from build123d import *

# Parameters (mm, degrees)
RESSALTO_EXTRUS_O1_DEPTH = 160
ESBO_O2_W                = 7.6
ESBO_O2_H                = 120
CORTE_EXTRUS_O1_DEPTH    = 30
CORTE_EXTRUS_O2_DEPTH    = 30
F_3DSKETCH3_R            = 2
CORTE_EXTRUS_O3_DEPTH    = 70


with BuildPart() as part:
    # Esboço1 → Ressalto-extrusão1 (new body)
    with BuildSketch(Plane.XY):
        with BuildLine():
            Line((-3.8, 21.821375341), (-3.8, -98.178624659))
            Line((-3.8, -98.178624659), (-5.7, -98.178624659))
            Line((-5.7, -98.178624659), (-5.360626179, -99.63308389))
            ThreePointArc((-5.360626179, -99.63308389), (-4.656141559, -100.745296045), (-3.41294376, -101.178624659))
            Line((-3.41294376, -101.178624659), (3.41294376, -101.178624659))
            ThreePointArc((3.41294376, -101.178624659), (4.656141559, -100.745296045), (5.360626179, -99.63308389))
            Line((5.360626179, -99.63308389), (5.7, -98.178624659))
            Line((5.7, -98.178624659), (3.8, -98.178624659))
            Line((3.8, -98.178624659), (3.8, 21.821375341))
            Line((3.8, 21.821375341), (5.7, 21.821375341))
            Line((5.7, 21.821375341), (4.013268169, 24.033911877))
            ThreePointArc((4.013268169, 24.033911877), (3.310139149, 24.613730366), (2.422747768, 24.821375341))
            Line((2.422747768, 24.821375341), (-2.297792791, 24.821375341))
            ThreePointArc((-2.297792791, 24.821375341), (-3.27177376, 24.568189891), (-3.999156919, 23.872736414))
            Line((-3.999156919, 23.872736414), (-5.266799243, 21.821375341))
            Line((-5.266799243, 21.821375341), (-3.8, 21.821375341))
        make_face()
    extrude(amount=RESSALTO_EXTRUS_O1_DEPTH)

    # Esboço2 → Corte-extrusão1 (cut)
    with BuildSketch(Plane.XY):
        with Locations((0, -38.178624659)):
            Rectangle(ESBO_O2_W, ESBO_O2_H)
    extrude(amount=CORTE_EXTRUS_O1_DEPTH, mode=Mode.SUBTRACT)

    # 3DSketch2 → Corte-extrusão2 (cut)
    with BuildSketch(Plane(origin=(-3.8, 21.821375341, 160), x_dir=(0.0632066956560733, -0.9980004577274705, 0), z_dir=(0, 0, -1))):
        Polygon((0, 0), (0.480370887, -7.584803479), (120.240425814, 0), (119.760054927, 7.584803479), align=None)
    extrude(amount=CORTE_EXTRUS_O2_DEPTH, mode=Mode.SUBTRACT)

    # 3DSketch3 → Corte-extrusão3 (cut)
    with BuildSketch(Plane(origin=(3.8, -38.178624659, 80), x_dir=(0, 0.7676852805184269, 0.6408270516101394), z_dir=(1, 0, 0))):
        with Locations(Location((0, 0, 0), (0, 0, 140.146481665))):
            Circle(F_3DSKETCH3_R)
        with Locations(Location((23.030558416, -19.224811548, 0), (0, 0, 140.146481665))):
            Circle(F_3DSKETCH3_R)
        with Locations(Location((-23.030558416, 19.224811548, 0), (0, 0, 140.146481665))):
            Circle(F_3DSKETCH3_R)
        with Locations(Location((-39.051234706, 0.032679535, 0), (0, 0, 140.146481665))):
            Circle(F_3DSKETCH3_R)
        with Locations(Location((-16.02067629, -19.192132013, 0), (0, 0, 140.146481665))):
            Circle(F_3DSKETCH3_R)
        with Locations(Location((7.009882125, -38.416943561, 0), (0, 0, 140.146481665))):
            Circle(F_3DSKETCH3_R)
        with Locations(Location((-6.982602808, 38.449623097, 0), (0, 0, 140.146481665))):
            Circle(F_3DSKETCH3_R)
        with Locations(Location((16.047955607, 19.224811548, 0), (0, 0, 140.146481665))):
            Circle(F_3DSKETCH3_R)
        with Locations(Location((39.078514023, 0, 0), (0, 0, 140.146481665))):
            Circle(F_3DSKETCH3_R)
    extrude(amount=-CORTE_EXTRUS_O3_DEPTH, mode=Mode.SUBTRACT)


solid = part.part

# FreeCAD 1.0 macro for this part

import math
import FreeCAD as App
import Part
import Sketcher
from FreeCAD import Vector

doc = App.newDocument("Part")
body = doc.addObject("PartDesign::Body", "Body")

# Sketch on XY plane
sketch1 = body.newObject("Sketcher::SketchObject", "Sketch")
sketch1.AttachmentSupport = (doc.getObject("XY_Plane"), [""])
sketch1.MapMode = "FlatFace"
sketch1.addGeometry([
    Part.LineSegment(Vector(-3.8, 21.8, 0), Vector(-3.8, -98.2, 0)),  # 0
    Part.LineSegment(Vector(-3.8, -98.2, 0), Vector(-5.7, -98.2, 0)),  # 1
    Part.LineSegment(Vector(-5.7, -98.2, 0), Vector(-5.4, -99.6, 0)),  # 2
    Part.ArcOfCircle(Part.Circle(Vector(-3.4, -99.2, 0), Vector(0, 0, 1), 2), math.radians(-167), math.radians(-90)),  # 3
    Part.LineSegment(Vector(-3.4, -101.2, 0), Vector(3.4, -101.2, 0)),  # 4
    Part.ArcOfCircle(Part.Circle(Vector(3.4, -99.2, 0), Vector(0, 0, 1), 2), math.radians(-90), math.radians(-13)),  # 5
    Part.LineSegment(Vector(5.4, -99.6, 0), Vector(5.7, -98.2, 0)),  # 6
    Part.LineSegment(Vector(5.7, -98.2, 0), Vector(3.8, -98.2, 0)),  # 7
    Part.LineSegment(Vector(3.8, -98.2, 0), Vector(3.8, 21.8, 0)),  # 8
    Part.LineSegment(Vector(3.8, 21.8, 0), Vector(5.7, 21.8, 0)),  # 9
    Part.LineSegment(Vector(5.7, 21.8, 0), Vector(4, 24, 0)),  # 10
    Part.ArcOfCircle(Part.Circle(Vector(2.4, 22.8, 0), Vector(0, 0, 1), 2), math.radians(37), math.radians(90)),  # 11
    Part.LineSegment(Vector(2.4, 24.8, 0), Vector(-2.3, 24.8, 0)),  # 12
    Part.ArcOfCircle(Part.Circle(Vector(-2.3, 22.8, 0), Vector(0, 0, 1), 2), math.radians(90), math.radians(148)),  # 13
    Part.LineSegment(Vector(-4, 23.9, 0), Vector(-5.3, 21.8, 0)),  # 14
    Part.LineSegment(Vector(-5.3, 21.8, 0), Vector(-3.8, 21.8, 0)),  # 15
], False)
sketch1.addConstraint([
    Sketcher.Constraint("Coincident", 0, 2, 1, 1),
    Sketcher.Constraint("Coincident", 1, 2, 2, 1),
    Sketcher.Constraint("Tangent", 2, 2, 3, 1),
    Sketcher.Constraint("Tangent", 3, 2, 4, 1),
    Sketcher.Constraint("Tangent", 4, 2, 5, 1),
    Sketcher.Constraint("Tangent", 5, 2, 6, 1),
    Sketcher.Constraint("Coincident", 6, 2, 7, 1),
    Sketcher.Constraint("Coincident", 7, 2, 8, 1),
    Sketcher.Constraint("Coincident", 8, 2, 9, 1),
    Sketcher.Constraint("Coincident", 9, 2, 10, 1),
    Sketcher.Constraint("Tangent", 10, 2, 11, 1),
    Sketcher.Constraint("Tangent", 11, 2, 12, 1),
    Sketcher.Constraint("Tangent", 12, 2, 13, 1),
    Sketcher.Constraint("Tangent", 13, 2, 14, 1),
    Sketcher.Constraint("Coincident", 14, 2, 15, 1),
    Sketcher.Constraint("Coincident", 15, 2, 0, 1),
    Sketcher.Constraint("Vertical", 0),
    Sketcher.Constraint("Horizontal", 1),
    Sketcher.Constraint("Horizontal", 4),
    Sketcher.Constraint("Horizontal", 7),
    Sketcher.Constraint("Vertical", 8),
    Sketcher.Constraint("Horizontal", 9),
    Sketcher.Constraint("Horizontal", 12),
    Sketcher.Constraint("Horizontal", 15),
    Sketcher.Constraint("Equal", 3, 5),
    Sketcher.Constraint("Equal", 5, 11),
    Sketcher.Constraint("Equal", 11, 13),
    Sketcher.Constraint("Symmetric", 2, 2, 5, 2, -2),
    Sketcher.Constraint("Symmetric", 0, 2, 7, 2, -2),
    Sketcher.Constraint("Horizontal", 9, 2, 14, 2),
    Sketcher.Constraint("Vertical", 6, 2, 9, 2),
    Sketcher.Constraint("Radius", 3, 2.0),
    Sketcher.Constraint("DistanceY", 0, 2, 0, 1, 120.0),
    Sketcher.Constraint("DistanceX", 1, 2, 1, 1, 1.9),
    Sketcher.Constraint("DistanceY", 5, 3, 11, 3, 122.0),
    Sketcher.Constraint("DistanceY", 3, 3, 0, 2, 1.0),
    Sketcher.Constraint("DistanceX", 0, 2, -1, 1, 3.8),
    Sketcher.Constraint("DistanceX", 15, 1, 15, 2, 1.466799),
    Sketcher.Constraint("DistanceX", 12, 2, 12, 1, 4.720541),
    Sketcher.Constraint("Distance", 2, 1.493528),
    Sketcher.Constraint("Distance", 14, 2.411431),
    Sketcher.Constraint("DistanceY", -1, 1, 10, 2, 24.033912),
])
pad1 = body.newObject("PartDesign::Pad", "Pad")
pad1.Profile = sketch1
pad1.Length = 160

# Sketch on XY plane
sketch2 = body.newObject("Sketcher::SketchObject", "Sketch001")
sketch2.AttachmentSupport = (doc.getObject("XY_Plane"), [""])
sketch2.MapMode = "FlatFace"
sketch2.addGeometry([
    Part.LineSegment(Vector(-4, 22, 0), Vector(-4, -98, 0)),
    Part.LineSegment(Vector(-4, -98, 0), Vector(4, -98, 0)),
    Part.LineSegment(Vector(4, -98, 0), Vector(4, 22, 0)),
    Part.LineSegment(Vector(4, 22, 0), Vector(-4, 22, 0)),
], False)
sketch2.addConstraint([
    Sketcher.Constraint("Coincident", 0, 2, 1, 1),
    Sketcher.Constraint("Coincident", 1, 2, 2, 1),
    Sketcher.Constraint("Coincident", 2, 2, 3, 1),
    Sketcher.Constraint("Coincident", 3, 2, 0, 1),
    Sketcher.Constraint("Vertical", 0),
    Sketcher.Constraint("Horizontal", 1),
    Sketcher.Constraint("Vertical", 2),
    Sketcher.Constraint("Horizontal", 3),
    Sketcher.Constraint("DistanceY", 0, 2, 0, 1, 120.0),
    Sketcher.Constraint("DistanceX", 1, 1, 1, 2, 7.6),
    Sketcher.Constraint("DistanceX", 0, 2, -1, 1, 3.8),
    Sketcher.Constraint("DistanceY", 0, 2, -1, 1, 98.178625),
])
pocket1 = body.newObject("PartDesign::Pocket", "Pocket")
pocket1.Profile = sketch2
pocket1.Length = 30
pocket1.Reversed = True

# Sketch on XY plane
sketch3 = body.newObject("Sketcher::SketchObject", "Sketch002")
sketch3.AttachmentSupport = (doc.getObject("XY_Plane"), [""])
sketch3.MapMode = "FlatFace"
sketch3.AttachmentOffset = App.Placement(Vector(0, 0, 160), App.Rotation())
sketch3.addGeometry([
    Part.LineSegment(Vector(-4, 22, 0), Vector(4, 22, 0)),
    Part.LineSegment(Vector(4, 22, 0), Vector(4, -98, 0)),
    Part.LineSegment(Vector(4, -98, 0), Vector(-4, -98, 0)),
    Part.LineSegment(Vector(-4, -98, 0), Vector(-4, 22, 0)),
], False)
sketch3.addConstraint([
    Sketcher.Constraint("Coincident", 0, 2, 1, 1),
    Sketcher.Constraint("Coincident", 1, 2, 2, 1),
    Sketcher.Constraint("Coincident", 2, 2, 3, 1),
    Sketcher.Constraint("Coincident", 3, 2, 0, 1),
    Sketcher.Constraint("Horizontal", 0),
    Sketcher.Constraint("Vertical", 1),
    Sketcher.Constraint("Horizontal", 2),
    Sketcher.Constraint("Vertical", 3),
    Sketcher.Constraint("DistanceY", 1, 2, 1, 1, 120.0),
    Sketcher.Constraint("DistanceX", 0, 1, 0, 2, 7.6),
    Sketcher.Constraint("DistanceX", -1, 1, 0, 2, 3.8),
    Sketcher.Constraint("DistanceY", -1, 1, 0, 2, 21.821375),
])
pocket2 = body.newObject("PartDesign::Pocket", "Pocket001")
pocket2.Profile = sketch3
pocket2.Length = 30

# Sketch on YZ plane
sketch4 = body.newObject("Sketcher::SketchObject", "Sketch003")
sketch4.AttachmentSupport = (doc.getObject("YZ_Plane"), [""])
sketch4.MapMode = "FlatFace"
sketch4.AttachmentOffset = App.Placement(Vector(0, 0, 3.8), App.Rotation())
sketch4.addGeometry([
    Part.Circle(Vector(-38.2, 80, 0), Vector(0, 0, 1), 2),  # 0
    Part.Circle(Vector(-8.2, 80, 0), Vector(0, 0, 1), 2),  # 1
    Part.Circle(Vector(-68.2, 80, 0), Vector(0, 0, 1), 2),  # 2
    Part.Circle(Vector(-68.2, 55, 0), Vector(0, 0, 1), 2),  # 3
    Part.Circle(Vector(-38.2, 55, 0), Vector(0, 0, 1), 2),  # 4
    Part.Circle(Vector(-8.2, 55, 0), Vector(0, 0, 1), 2),  # 5
    Part.Circle(Vector(-68.2, 105, 0), Vector(0, 0, 1), 2),  # 6
    Part.Circle(Vector(-38.2, 105, 0), Vector(0, 0, 1), 2),  # 7
    Part.Circle(Vector(-8.2, 105, 0), Vector(0, 0, 1), 2),  # 8
], False)
sketch4.addConstraint([
    Sketcher.Constraint("Equal", 0, 1),
    Sketcher.Constraint("Equal", 1, 2),
    Sketcher.Constraint("Equal", 2, 3),
    Sketcher.Constraint("Equal", 3, 4),
    Sketcher.Constraint("Equal", 4, 5),
    Sketcher.Constraint("Equal", 5, 6),
    Sketcher.Constraint("Equal", 6, 7),
    Sketcher.Constraint("Equal", 7, 8),
    Sketcher.Constraint("Horizontal", 0, 3, 1, 3),
    Sketcher.Constraint("Horizontal", 1, 3, 2, 3),
    Sketcher.Constraint("Horizontal", 3, 3, 4, 3),
    Sketcher.Constraint("Horizontal", 4, 3, 5, 3),
    Sketcher.Constraint("Horizontal", 6, 3, 7, 3),
    Sketcher.Constraint("Horizontal", 7, 3, 8, 3),
    Sketcher.Constraint("Vertical", 2, 3, 3, 3),
    Sketcher.Constraint("Vertical", 0, 3, 4, 3),
    Sketcher.Constraint("Vertical", 1, 3, 5, 3),
    Sketcher.Constraint("Vertical", 3, 3, 6, 3),
    Sketcher.Constraint("Vertical", 4, 3, 7, 3),
    Sketcher.Constraint("Vertical", 5, 3, 8, 3),
    Sketcher.Constraint("Diameter", 0, 4.0),
    Sketcher.Constraint("DistanceY", -1, 1, 0, 3, 80.0),
    Sketcher.Constraint("DistanceY", -1, 1, 3, 3, 55.0),
    Sketcher.Constraint("DistanceX", 0, 3, 1, 3, 30.0),
    Sketcher.Constraint("DistanceX", 2, 3, 0, 3, 30.0),
    Sketcher.Constraint("DistanceY", -1, 1, 6, 3, 105.042569),
    Sketcher.Constraint("DistanceX", 0, 3, -1, 1, 38.178625),
])
pocket3 = body.newObject("PartDesign::Pocket", "Pocket002")
pocket3.Profile = sketch4
pocket3.Length = 70

doc.recompute()
